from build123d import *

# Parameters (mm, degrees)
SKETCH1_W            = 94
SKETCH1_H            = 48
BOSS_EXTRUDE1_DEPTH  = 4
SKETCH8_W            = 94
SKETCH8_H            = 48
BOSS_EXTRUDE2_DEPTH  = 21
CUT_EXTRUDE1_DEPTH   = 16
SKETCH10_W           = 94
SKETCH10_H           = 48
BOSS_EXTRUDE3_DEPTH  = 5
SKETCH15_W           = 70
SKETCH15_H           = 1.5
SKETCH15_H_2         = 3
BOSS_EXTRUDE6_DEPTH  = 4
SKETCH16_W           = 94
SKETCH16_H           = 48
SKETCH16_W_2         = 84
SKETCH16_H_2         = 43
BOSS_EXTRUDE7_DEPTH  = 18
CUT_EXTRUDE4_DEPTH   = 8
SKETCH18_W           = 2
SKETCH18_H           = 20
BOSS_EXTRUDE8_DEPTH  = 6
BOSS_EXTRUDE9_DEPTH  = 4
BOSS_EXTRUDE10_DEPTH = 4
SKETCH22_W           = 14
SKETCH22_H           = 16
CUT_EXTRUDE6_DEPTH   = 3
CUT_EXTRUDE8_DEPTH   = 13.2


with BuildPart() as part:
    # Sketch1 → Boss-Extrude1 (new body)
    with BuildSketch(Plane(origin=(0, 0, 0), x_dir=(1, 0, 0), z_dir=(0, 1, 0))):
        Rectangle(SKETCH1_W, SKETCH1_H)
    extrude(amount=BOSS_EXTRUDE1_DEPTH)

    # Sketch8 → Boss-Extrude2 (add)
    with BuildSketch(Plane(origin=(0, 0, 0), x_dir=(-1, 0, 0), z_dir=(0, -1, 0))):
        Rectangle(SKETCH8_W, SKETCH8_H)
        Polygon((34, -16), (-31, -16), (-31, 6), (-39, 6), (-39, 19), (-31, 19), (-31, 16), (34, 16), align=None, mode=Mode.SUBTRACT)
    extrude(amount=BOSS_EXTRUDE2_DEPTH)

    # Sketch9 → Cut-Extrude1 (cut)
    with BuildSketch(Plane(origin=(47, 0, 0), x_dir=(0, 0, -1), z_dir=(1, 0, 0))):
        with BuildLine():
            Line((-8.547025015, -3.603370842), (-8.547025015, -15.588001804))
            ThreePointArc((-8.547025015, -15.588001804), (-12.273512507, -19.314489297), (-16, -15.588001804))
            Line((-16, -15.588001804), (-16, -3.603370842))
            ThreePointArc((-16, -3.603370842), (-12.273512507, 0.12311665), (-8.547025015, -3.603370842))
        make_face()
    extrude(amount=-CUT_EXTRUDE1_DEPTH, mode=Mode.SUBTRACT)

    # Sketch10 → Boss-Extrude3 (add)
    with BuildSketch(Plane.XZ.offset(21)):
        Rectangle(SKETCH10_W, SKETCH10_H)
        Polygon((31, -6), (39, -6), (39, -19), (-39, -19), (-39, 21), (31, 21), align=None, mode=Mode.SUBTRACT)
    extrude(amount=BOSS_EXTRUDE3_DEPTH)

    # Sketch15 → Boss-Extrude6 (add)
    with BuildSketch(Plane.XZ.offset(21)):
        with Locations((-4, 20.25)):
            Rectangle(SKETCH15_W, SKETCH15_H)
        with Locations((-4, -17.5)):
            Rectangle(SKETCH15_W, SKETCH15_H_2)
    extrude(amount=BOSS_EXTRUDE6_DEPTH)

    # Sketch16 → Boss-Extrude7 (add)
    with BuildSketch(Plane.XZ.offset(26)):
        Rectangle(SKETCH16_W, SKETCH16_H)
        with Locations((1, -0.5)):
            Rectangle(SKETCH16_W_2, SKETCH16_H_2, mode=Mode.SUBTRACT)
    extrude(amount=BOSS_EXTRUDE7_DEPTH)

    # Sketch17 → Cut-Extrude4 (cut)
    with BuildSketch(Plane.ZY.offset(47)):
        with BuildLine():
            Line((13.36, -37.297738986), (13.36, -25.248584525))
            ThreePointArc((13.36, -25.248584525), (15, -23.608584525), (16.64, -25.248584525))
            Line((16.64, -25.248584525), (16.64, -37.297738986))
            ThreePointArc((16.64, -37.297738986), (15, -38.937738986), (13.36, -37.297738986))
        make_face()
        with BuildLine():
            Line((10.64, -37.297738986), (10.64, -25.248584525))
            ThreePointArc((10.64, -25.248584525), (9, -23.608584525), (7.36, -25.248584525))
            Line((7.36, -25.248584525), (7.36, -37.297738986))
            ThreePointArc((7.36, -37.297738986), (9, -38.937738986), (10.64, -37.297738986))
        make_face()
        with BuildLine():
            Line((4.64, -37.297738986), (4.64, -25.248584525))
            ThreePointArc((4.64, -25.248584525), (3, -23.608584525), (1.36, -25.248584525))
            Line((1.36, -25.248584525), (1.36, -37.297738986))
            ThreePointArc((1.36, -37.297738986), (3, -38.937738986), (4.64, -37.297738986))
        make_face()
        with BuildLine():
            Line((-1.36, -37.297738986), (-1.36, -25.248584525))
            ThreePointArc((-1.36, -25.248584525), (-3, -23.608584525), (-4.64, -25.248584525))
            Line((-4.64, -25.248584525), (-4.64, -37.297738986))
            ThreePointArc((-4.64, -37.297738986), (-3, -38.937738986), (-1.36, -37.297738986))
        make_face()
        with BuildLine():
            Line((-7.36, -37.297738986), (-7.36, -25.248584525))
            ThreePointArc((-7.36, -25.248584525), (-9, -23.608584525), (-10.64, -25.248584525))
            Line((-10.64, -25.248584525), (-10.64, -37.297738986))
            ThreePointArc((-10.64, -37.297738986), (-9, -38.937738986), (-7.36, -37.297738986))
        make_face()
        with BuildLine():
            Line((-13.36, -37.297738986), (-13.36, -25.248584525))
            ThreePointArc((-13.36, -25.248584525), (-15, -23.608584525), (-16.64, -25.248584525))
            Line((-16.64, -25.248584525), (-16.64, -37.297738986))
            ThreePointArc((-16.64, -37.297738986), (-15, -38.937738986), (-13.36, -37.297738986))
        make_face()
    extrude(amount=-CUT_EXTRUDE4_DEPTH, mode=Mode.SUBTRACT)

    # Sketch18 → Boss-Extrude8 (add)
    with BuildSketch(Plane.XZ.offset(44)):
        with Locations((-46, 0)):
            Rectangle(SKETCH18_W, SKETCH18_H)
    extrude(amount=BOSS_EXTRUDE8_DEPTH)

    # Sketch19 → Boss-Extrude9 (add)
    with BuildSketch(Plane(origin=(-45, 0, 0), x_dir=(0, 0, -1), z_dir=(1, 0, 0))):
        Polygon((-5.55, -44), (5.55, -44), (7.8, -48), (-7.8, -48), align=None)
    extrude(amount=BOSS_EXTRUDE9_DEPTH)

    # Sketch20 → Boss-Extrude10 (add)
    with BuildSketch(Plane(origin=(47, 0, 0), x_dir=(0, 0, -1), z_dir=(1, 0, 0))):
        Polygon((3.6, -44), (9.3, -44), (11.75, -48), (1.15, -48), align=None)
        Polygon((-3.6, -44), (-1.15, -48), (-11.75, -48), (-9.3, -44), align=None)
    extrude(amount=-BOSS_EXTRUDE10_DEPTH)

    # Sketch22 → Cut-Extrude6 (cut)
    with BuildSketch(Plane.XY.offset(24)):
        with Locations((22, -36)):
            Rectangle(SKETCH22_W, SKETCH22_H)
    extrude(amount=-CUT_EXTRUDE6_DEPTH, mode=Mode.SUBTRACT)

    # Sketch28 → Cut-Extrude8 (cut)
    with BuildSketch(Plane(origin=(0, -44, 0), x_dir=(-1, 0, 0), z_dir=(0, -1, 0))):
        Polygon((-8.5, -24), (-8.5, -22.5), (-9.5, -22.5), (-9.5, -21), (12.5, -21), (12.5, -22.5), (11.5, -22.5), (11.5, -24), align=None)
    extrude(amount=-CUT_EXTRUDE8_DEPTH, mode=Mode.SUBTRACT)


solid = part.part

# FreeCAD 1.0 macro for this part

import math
import FreeCAD as App
import Part
import Sketcher
from FreeCAD import Vector


def add_polygon(sketch, points):
    """Adds a closed chain of lines whose ends are joined by coincident constraints."""
    first, n = sketch.GeometryCount, len(points)
    for a, b in zip(points, points[1:] + points[:1]):
        sketch.addGeometry(Part.LineSegment(App.Vector(*a, 0), App.Vector(*b, 0)), False)
    for i in range(n):
        sketch.addConstraint(Sketcher.Constraint("Coincident", first + i, 2, first + (i + 1) % n, 1))

doc = App.newDocument("Part")
body = doc.addObject("PartDesign::Body", "Body")

sketch1 = body.newObject("Sketcher::SketchObject", "Sketch")
sketch1.AttachmentSupport = (doc.getObject("XZ_Plane"), [""])
sketch1.MapMode = "FlatFace"
add_polygon(sketch1, [(-47, -24), (-47, 24), (47, 24), (47, -24)])
sketch1.addConstraint([
    Sketcher.Constraint("Vertical", 0),
    Sketcher.Constraint("Horizontal", 1),
    Sketcher.Constraint("Vertical", 2),
    Sketcher.Constraint("Horizontal", 3),
    Sketcher.Constraint("Symmetric", 0, 2, 2, 2, -1, 1),
    Sketcher.Constraint("DistanceX", 1, 1, 1, 2, 94.0),
    Sketcher.Constraint("DistanceY", 0, 1, 0, 2, 48.0),
])
pad1 = body.newObject("PartDesign::Pad", "Pad")
pad1.Profile = sketch1
pad1.Length = 4
pad1.Reversed = True

sketch2 = body.newObject("Sketcher::SketchObject", "Sketch001")
sketch2.AttachmentSupport = (doc.getObject("XZ_Plane"), [""])
sketch2.MapMode = "FlatFace"
add_polygon(sketch2, [(47, -24), (47, 24), (-47, 24), (-47, -24)])
add_polygon(sketch2, [(-34, -16), (-34, 16), (31, 16), (31, -6), (39, -6), (39, -19), (31, -19), (31, -16)])
sketch2.addConstraint([
    Sketcher.Constraint("Vertical", 0),
    Sketcher.Constraint("Horizontal", 1),
    Sketcher.Constraint("Vertical", 2),
    Sketcher.Constraint("Horizontal", 3),
    Sketcher.Constraint("Vertical", 4),
    Sketcher.Constraint("Horizontal", 5),
    Sketcher.Constraint("Vertical", 6),
    Sketcher.Constraint("Horizontal", 7),
    Sketcher.Constraint("Vertical", 8),
    Sketcher.Constraint("Horizontal", 9),
    Sketcher.Constraint("Vertical", 10),
    Sketcher.Constraint("Horizontal", 11),
    Sketcher.Constraint("Symmetric", 0, 2, 2, 2, -1, 1),
    Sketcher.Constraint("Symmetric", 5, 2, 10, 2, -1),
    Sketcher.Constraint("DistanceX", 1, 2, 1, 1, 94.0),
    Sketcher.Constraint("DistanceX", 5, 1, 5, 2, 65.0),
    Sketcher.Constraint("DistanceX", 7, 1, 7, 2, 8.0),
    Sketcher.Constraint("DistanceY", 0, 1, 0, 2, 48.0),
    Sketcher.Constraint("DistanceY", 4, 1, 4, 2, 32.0),
    Sketcher.Constraint("DistanceY", 6, 2, 6, 1, 22.0),
    Sketcher.Constraint("DistanceY", 8, 2, 8, 1, 13.0),
    Sketcher.Constraint("DistanceX", 4, 2, -1, 1, 34.0),
])
pad2 = body.newObject("PartDesign::Pad", "Pad001")
pad2.Profile = sketch2
pad2.Length = 21

sketch3 = body.newObject("Sketcher::SketchObject", "Sketch002")
sketch3.AttachmentSupport = (doc.getObject("YZ_Plane"), [""])
sketch3.MapMode = "FlatFace"
sketch3.AttachmentOffset = App.Placement(Vector(0, 0, 47), App.Rotation())
sketch3.addGeometry([
    Part.LineSegment(Vector(-15.6, 8.5, 0), Vector(-3.6, 8.5, 0)),
    Part.ArcOfCircle(Part.Circle(Vector(-3.6, 12.3, 0), Vector(0, 0, 1), 3.7), math.radians(-90), math.radians(90)),
    Part.LineSegment(Vector(-3.6, 16, 0), Vector(-15.6, 16, 0)),
    Part.ArcOfCircle(Part.Circle(Vector(-15.6, 12.3, 0), Vector(0, 0, 1), 3.7), math.radians(90), math.radians(270)),
], False)
sketch3.addConstraint([
    Sketcher.Constraint("Tangent", 0, 2, 1, 1),
    Sketcher.Constraint("Tangent", 1, 2, 2, 1),
    Sketcher.Constraint("Tangent", 2, 2, 3, 1),
    Sketcher.Constraint("Tangent", 3, 2, 0, 1),
    Sketcher.Constraint("Horizontal", 0),
    Sketcher.Constraint("Horizontal", 2),
    Sketcher.Constraint("DistanceY", -1, 1, 1, 2, 16.0),
    Sketcher.Constraint("DistanceX", 3, 3, -1, 1, 15.588002),
    Sketcher.Constraint("Radius", 1, 3.726487),
    Sketcher.Constraint("DistanceX", 0, 1, 0, 2, 11.984631),
])
pocket1 = body.newObject("PartDesign::Pocket", "Pocket")
pocket1.Profile = sketch3
pocket1.Length = 16

sketch4 = body.newObject("Sketcher::SketchObject", "Sketch003")
sketch4.AttachmentSupport = (doc.getObject("XZ_Plane"), [""])
sketch4.MapMode = "FlatFace"
sketch4.AttachmentOffset = App.Placement(Vector(0, 0, 21), App.Rotation())
add_polygon(sketch4, [(-47, 24), (-47, -24), (47, -24), (47, 24)])
add_polygon(sketch4, [(31, 21), (31, -6), (39, -6), (39, -19), (-39, -19), (-39, 21)])
sketch4.addConstraint([
    Sketcher.Constraint("Vertical", 0),
    Sketcher.Constraint("Horizontal", 1),
    Sketcher.Constraint("Vertical", 2),
    Sketcher.Constraint("Horizontal", 3),
    Sketcher.Constraint("Vertical", 4),
    Sketcher.Constraint("Horizontal", 5),
    Sketcher.Constraint("Vertical", 6),
    Sketcher.Constraint("Horizontal", 7),
    Sketcher.Constraint("Vertical", 8),
    Sketcher.Constraint("Horizontal", 9),
    Sketcher.Constraint("Symmetric", 0, 2, 2, 2, -1, 1),
    Sketcher.Constraint("DistanceX", 1, 1, 1, 2, 94.0),
    Sketcher.Constraint("DistanceX", 5, 1, 5, 2, 8.0),
    Sketcher.Constraint("DistanceX", 7, 2, 7, 1, 78.0),
    Sketcher.Constraint("DistanceY", 0, 2, 0, 1, 48.0),
    Sketcher.Constraint("DistanceY", 4, 2, 4, 1, 27.0),
    Sketcher.Constraint("DistanceY", 6, 2, 6, 1, 13.0),
    Sketcher.Constraint("DistanceX", -1, 1, 4, 2, 31.0),
    Sketcher.Constraint("DistanceY", 4, 2, -1, 1, 6.0),
])
pad3 = body.newObject("PartDesign::Pad", "Pad002")
pad3.Profile = sketch4
pad3.Length = 5

sketch5 = body.newObject("Sketcher::SketchObject", "Sketch004")
sketch5.AttachmentSupport = (doc.getObject("XZ_Plane"), [""])
sketch5.MapMode = "FlatFace"
sketch5.AttachmentOffset = App.Placement(Vector(0, 0, 21), App.Rotation())
add_polygon(sketch5, [(-39, 21), (-39, 19.5), (31, 19.5), (31, 21)])
add_polygon(sketch5, [(-39, -16), (-39, -19), (31, -19), (31, -16)])
sketch5.addConstraint([
    Sketcher.Constraint("Vertical", 0),
    Sketcher.Constraint("Horizontal", 1),
    Sketcher.Constraint("Vertical", 2),
    Sketcher.Constraint("Horizontal", 3),
    Sketcher.Constraint("Vertical", 4),
    Sketcher.Constraint("Horizontal", 5),
    Sketcher.Constraint("Vertical", 6),
    Sketcher.Constraint("Horizontal", 7),
    Sketcher.Constraint("Vertical", 3, 2, 4, 2),
    Sketcher.Constraint("Vertical", 2, 2, 5, 2),
    Sketcher.Constraint("DistanceX", 1, 1, 1, 2, 70.0),
    Sketcher.Constraint("DistanceY", 4, 2, 4, 1, 3.0),
    Sketcher.Constraint("DistanceY", 0, 2, 0, 1, 1.5),
    Sketcher.Constraint("DistanceX", 0, 2, -1, 1, 39.0),
    Sketcher.Constraint("DistanceY", -1, 1, 2, 2, 21.0),
    Sketcher.Constraint("DistanceY", 4, 2, -1, 1, 19.0),
])
pad4 = body.newObject("PartDesign::Pad", "Pad003")
pad4.Profile = sketch5
pad4.Length = 4

sketch6 = body.newObject("Sketcher::SketchObject", "Sketch005")
sketch6.AttachmentSupport = (doc.getObject("XZ_Plane"), [""])
sketch6.MapMode = "FlatFace"
sketch6.AttachmentOffset = App.Placement(Vector(0, 0, 26), App.Rotation())
add_polygon(sketch6, [(-47, 24), (-47, -24), (47, -24), (47, 24)])
add_polygon(sketch6, [(43, -22), (-41, -22), (-41, 21), (43, 21)])
sketch6.addConstraint([
    Sketcher.Constraint("Vertical", 0),
    Sketcher.Constraint("Horizontal", 1),
    Sketcher.Constraint("Vertical", 2),
    Sketcher.Constraint("Horizontal", 3),
    Sketcher.Constraint("Horizontal", 4),
    Sketcher.Constraint("Vertical", 5),
    Sketcher.Constraint("Horizontal", 6),
    Sketcher.Constraint("Vertical", 7),
    Sketcher.Constraint("Symmetric", 0, 2, 2, 2, -1, 1),
    Sketcher.Constraint("DistanceX", 1, 1, 1, 2, 94.0),
    Sketcher.Constraint("DistanceX", 4, 2, 4, 1, 84.0),
    Sketcher.Constraint("DistanceY", 0, 2, 0, 1, 48.0),
    Sketcher.Constraint("DistanceY", 5, 1, 5, 2, 43.0),
    Sketcher.Constraint("DistanceX", 4, 2, -1, 1, 41.0),
    Sketcher.Constraint("DistanceY", 4, 2, -1, 1, 22.0),
])
pad5 = body.newObject("PartDesign::Pad", "Pad004")
pad5.Profile = sketch6
pad5.Length = 18

sketch7 = body.newObject("Sketcher::SketchObject", "Sketch006")
sketch7.AttachmentSupport = (doc.getObject("YZ_Plane"), [""])
sketch7.MapMode = "FlatFace"
sketch7.AttachmentOffset = App.Placement(Vector(0, 0, -47), App.Rotation())
sketch7.addGeometry([
    Part.LineSegment(Vector(-25.2, 13.4, 0), Vector(-37.3, 13.4, 0)),
    Part.ArcOfCircle(Part.Circle(Vector(-37.3, 15, 0), Vector(0, 0, 1), 1.6), math.radians(90), math.radians(270)),
    Part.LineSegment(Vector(-37.3, 16.6, 0), Vector(-25.2, 16.6, 0)),
    Part.ArcOfCircle(Part.Circle(Vector(-25.2, 15, 0), Vector(0, 0, 1), 1.6), math.radians(-90), math.radians(90)),
    Part.LineSegment(Vector(-37.3, 10.6, 0), Vector(-25.2, 10.6, 0)),
    Part.ArcOfCircle(Part.Circle(Vector(-25.2, 9, 0), Vector(0, 0, 1), 1.6), math.radians(-90), math.radians(90)),
    Part.LineSegment(Vector(-25.2, 7.4, 0), Vector(-37.3, 7.4, 0)),
    Part.ArcOfCircle(Part.Circle(Vector(-37.3, 9, 0), Vector(0, 0, 1), 1.6), math.radians(90), math.radians(270)),
    Part.LineSegment(Vector(-37.3, 4.6, 0), Vector(-25.2, 4.6, 0)),
    Part.ArcOfCircle(Part.Circle(Vector(-25.2, 3, 0), Vector(0, 0, 1), 1.6), math.radians(-90), math.radians(90)),
    Part.LineSegment(Vector(-25.2, 1.4, 0), Vector(-37.3, 1.4, 0)),
    Part.ArcOfCircle(Part.Circle(Vector(-37.3, 3, 0), Vector(0, 0, 1), 1.6), math.radians(90), math.radians(270)),
    Part.LineSegment(Vector(-37.3, -1.4, 0), Vector(-25.2, -1.4, 0)),
    Part.ArcOfCircle(Part.Circle(Vector(-25.2, -3, 0), Vector(0, 0, 1), 1.6), math.radians(-90), math.radians(90)),
    Part.LineSegment(Vector(-25.2, -4.6, 0), Vector(-37.3, -4.6, 0)),
    Part.ArcOfCircle(Part.Circle(Vector(-37.3, -3, 0), Vector(0, 0, 1), 1.6), math.radians(90), math.radians(270)),
    Part.LineSegment(Vector(-37.3, -7.4, 0), Vector(-25.2, -7.4, 0)),
    Part.ArcOfCircle(Part.Circle(Vector(-25.2, -9, 0), Vector(0, 0, 1), 1.6), math.radians(-90), math.radians(90)),
    Part.LineSegment(Vector(-25.2, -10.6, 0), Vector(-37.3, -10.6, 0)),
    Part.ArcOfCircle(Part.Circle(Vector(-37.3, -9, 0), Vector(0, 0, 1), 1.6), math.radians(90), math.radians(270)),
    Part.LineSegment(Vector(-37.3, -13.4, 0), Vector(-25.2, -13.4, 0)),
    Part.ArcOfCircle(Part.Circle(Vector(-25.2, -15, 0), Vector(0, 0, 1), 1.6), math.radians(-90), math.radians(90)),
    Part.LineSegment(Vector(-25.2, -16.6, 0), Vector(-37.3, -16.6, 0)),
    Part.ArcOfCircle(Part.Circle(Vector(-37.3, -15, 0), Vector(0, 0, 1), 1.6), math.radians(90), math.radians(270)),
], False)
sketch7.addConstraint([
    Sketcher.Constraint("Tangent", 0, 2, 1, 2),
    Sketcher.Constraint("Tangent", 1, 1, 2, 1),
    Sketcher.Constraint("Tangent", 2, 2, 3, 2),
    Sketcher.Constraint("Tangent", 3, 1, 0, 1),
    Sketcher.Constraint("Tangent", 4, 2, 5, 2),
    Sketcher.Constraint("Tangent", 5, 1, 6, 1),
    Sketcher.Constraint("Tangent", 6, 2, 7, 2),
    Sketcher.Constraint("Tangent", 7, 1, 4, 1),
    Sketcher.Constraint("Tangent", 8, 2, 9, 2),
    Sketcher.Constraint("Tangent", 9, 1, 10, 1),
    Sketcher.Constraint("Tangent", 10, 2, 11, 2),
    Sketcher.Constraint("Tangent", 11, 1, 8, 1),
    Sketcher.Constraint("Tangent", 12, 2, 13, 2),
    Sketcher.Constraint("Tangent", 13, 1, 14, 1),
    Sketcher.Constraint("Tangent", 14, 2, 15, 2),
    Sketcher.Constraint("Tangent", 15, 1, 12, 1),
    Sketcher.Constraint("Tangent", 16, 2, 17, 2),
    Sketcher.Constraint("Tangent", 17, 1, 18, 1),
    Sketcher.Constraint("Tangent", 18, 2, 19, 2),
    Sketcher.Constraint("Tangent", 19, 1, 16, 1),
    Sketcher.Constraint("Tangent", 20, 2, 21, 2),
    Sketcher.Constraint("Tangent", 21, 1, 22, 1),
    Sketcher.Constraint("Tangent", 22, 2, 23, 2),
    Sketcher.Constraint("Tangent", 23, 1, 20, 1),
    Sketcher.Constraint("Horizontal", 0),
    Sketcher.Constraint("Horizontal", 2),
    Sketcher.Constraint("Horizontal", 4),
    Sketcher.Constraint("Horizontal", 6),
    Sketcher.Constraint("Horizontal", 8),
    Sketcher.Constraint("Horizontal", 10),
    Sketcher.Constraint("Horizontal", 12),
    Sketcher.Constraint("Horizontal", 14),
    Sketcher.Constraint("Horizontal", 16),
    Sketcher.Constraint("Horizontal", 18),
    Sketcher.Constraint("Horizontal", 20),
    Sketcher.Constraint("Horizontal", 22),
    Sketcher.Constraint("Equal", 3, 5),
    Sketcher.Constraint("Equal", 7, 9),
    Sketcher.Constraint("Equal", 11, 13),
    Sketcher.Constraint("Equal", 15, 17),
    Sketcher.Constraint("Equal", 19, 21),
    Sketcher.Constraint("Symmetric", 9, 3, 13, 3, -1),
    Sketcher.Constraint("Symmetric", 5, 3, 17, 3, -1),
    Sketcher.Constraint("Symmetric", 3, 3, 21, 3, -1),
    Sketcher.Constraint("Vertical", 3, 3, 5, 3),
    Sketcher.Constraint("Vertical", 1, 3, 7, 3),
    Sketcher.Constraint("Vertical", 5, 3, 9, 3),
    Sketcher.Constraint("Vertical", 7, 3, 11, 3),
    Sketcher.Constraint("Vertical", 11, 3, 15, 3),
    Sketcher.Constraint("Vertical", 15, 3, 19, 3),
    Sketcher.Constraint("Vertical", 19, 3, 23, 3),
    Sketcher.Constraint("Radius", 1, 1.64),
    Sketcher.Constraint("DistanceY", -1, 1, 1, 3, 15.0),
    Sketcher.Constraint("DistanceY", -1, 1, 5, 3, 9.0),
    Sketcher.Constraint("DistanceY", -1, 1, 9, 3, 3.0),
    Sketcher.Constraint("DistanceX", 0, 2, 0, 1, 12.049154),
    Sketcher.Constraint("DistanceX", 1, 3, -1, 1, 37.297739),
])
pocket2 = body.newObject("PartDesign::Pocket", "Pocket001")
pocket2.Profile = sketch7
pocket2.Length = 8
pocket2.Reversed = True

sketch8 = body.newObject("Sketcher::SketchObject", "Sketch007")
sketch8.AttachmentSupport = (doc.getObject("XZ_Plane"), [""])
sketch8.MapMode = "FlatFace"
sketch8.AttachmentOffset = App.Placement(Vector(0, 0, 44), App.Rotation())
add_polygon(sketch8, [(-47, 10), (-47, -10), (-45, -10), (-45, 10)])
sketch8.addConstraint([
    Sketcher.Constraint("Vertical", 0),
    Sketcher.Constraint("Horizontal", 1),
    Sketcher.Constraint("Vertical", 2),
    Sketcher.Constraint("Horizontal", 3),
    Sketcher.Constraint("DistanceX", 1, 1, 1, 2, 2.0),
    Sketcher.Constraint("DistanceY", 0, 2, 0, 1, 20.0),
    Sketcher.Constraint("DistanceX", 0, 2, -1, 1, 47.0),
    Sketcher.Constraint("DistanceY", 0, 2, -1, 1, 10.0),
])
pad6 = body.newObject("PartDesign::Pad", "Pad005")
pad6.Profile = sketch8
pad6.Length = 6

sketch9 = body.newObject("Sketcher::SketchObject", "Sketch008")
sketch9.AttachmentSupport = (doc.getObject("YZ_Plane"), [""])
sketch9.MapMode = "FlatFace"
sketch9.AttachmentOffset = App.Placement(Vector(0, 0, -45), App.Rotation())
add_polygon(sketch9, [(-44, -5.5), (-44, 5.5), (-48, 7.8), (-48, -7.8)])
sketch9.addConstraint([
    Sketcher.Constraint("Vertical", 0),
    Sketcher.Constraint("Vertical", 2),
    Sketcher.Constraint("Equal", 1, 3),
    Sketcher.Constraint("DistanceY", 0, 1, 0, 2, 11.1),
    Sketcher.Constraint("DistanceY", 2, 2, 2, 1, 15.6),
    Sketcher.Constraint("DistanceX", 0, 2, -1, 1, 44.0),
    Sketcher.Constraint("DistanceX", 1, 2, -1, 1, 48.0),
    Sketcher.Constraint("DistanceY", -1, 1, 1, 2, 7.8),
])
pad7 = body.newObject("PartDesign::Pad", "Pad006")
pad7.Profile = sketch9
pad7.Length = 4

sketch10 = body.newObject("Sketcher::SketchObject", "Sketch009")
sketch10.AttachmentSupport = (doc.getObject("YZ_Plane"), [""])
sketch10.MapMode = "FlatFace"
sketch10.AttachmentOffset = App.Placement(Vector(0, 0, 47), App.Rotation())
add_polygon(sketch10, [(-44, -9.3), (-44, -3.6), (-48, -1.1), (-48, -11.8)])
add_polygon(sketch10, [(-48, 1.1), (-44, 3.6), (-44, 9.3), (-48, 11.8)])
sketch10.addConstraint([
    Sketcher.Constraint("Vertical", 0),
    Sketcher.Constraint("Vertical", 2),
    Sketcher.Constraint("Vertical", 5),
    Sketcher.Constraint("Vertical", 7),
    Sketcher.Constraint("Symmetric", 0, 2, 4, 2, -1),
    Sketcher.Constraint("Symmetric", 2, 2, 6, 2, -1),
    Sketcher.Constraint("Parallel", 3, 4),
    Sketcher.Constraint("Parallel", 1, 6),
    Sketcher.Constraint("Equal", 0, 5),
    Sketcher.Constraint("DistanceY", 0, 1, 0, 2, 5.7),
    Sketcher.Constraint("DistanceY", 2, 2, 2, 1, 10.6),
    Sketcher.Constraint("DistanceX", 0, 2, -1, 1, 44.0),
    Sketcher.Constraint("DistanceX", 1, 2, -1, 1, 48.0),
    Sketcher.Constraint("DistanceY", 0, 2, -1, 1, 3.6),
])
pad8 = body.newObject("PartDesign::Pad", "Pad007")
pad8.Profile = sketch10
pad8.Length = 4
pad8.Reversed = True

sketch11 = body.newObject("Sketcher::SketchObject", "Sketch010")
sketch11.AttachmentSupport = (doc.getObject("XY_Plane"), [""])
sketch11.MapMode = "FlatFace"
sketch11.AttachmentOffset = App.Placement(Vector(0, 0, 24), App.Rotation())
add_polygon(sketch11, [(15, -28), (15, -44), (29, -44), (29, -28)])
sketch11.addConstraint([
    Sketcher.Constraint("Vertical", 0),
    Sketcher.Constraint("Horizontal", 1),
    Sketcher.Constraint("Vertical", 2),
    Sketcher.Constraint("Horizontal", 3),
    Sketcher.Constraint("DistanceX", 1, 1, 1, 2, 14.0),
    Sketcher.Constraint("DistanceY", 0, 2, 0, 1, 16.0),
    Sketcher.Constraint("DistanceX", -1, 1, 0, 2, 15.0),
    Sketcher.Constraint("DistanceY", 0, 2, -1, 1, 44.0),
])
pocket3 = body.newObject("PartDesign::Pocket", "Pocket002")
pocket3.Profile = sketch11
pocket3.Length = 3

sketch12 = body.newObject("Sketcher::SketchObject", "Sketch011")
sketch12.AttachmentSupport = (doc.getObject("XZ_Plane"), [""])
sketch12.MapMode = "FlatFace"
sketch12.AttachmentOffset = App.Placement(Vector(0, 0, 44), App.Rotation())
add_polygon(sketch12, [(8.5, 22.5), (8.5, 24), (-11.5, 24), (-11.5, 22.5), (-12.5, 22.5), (-12.5, 21), (9.5, 21), (9.5, 22.5)])
sketch12.addConstraint([
    Sketcher.Constraint("Vertical", 0),
    Sketcher.Constraint("Horizontal", 1),
    Sketcher.Constraint("Vertical", 2),
    Sketcher.Constraint("Horizontal", 3),
    Sketcher.Constraint("Vertical", 4),
    Sketcher.Constraint("Horizontal", 5),
    Sketcher.Constraint("Vertical", 6),
    Sketcher.Constraint("Horizontal", 7),
    Sketcher.Constraint("Horizontal", 3, 2, 6, 2),
    Sketcher.Constraint("Equal", 3, 7),
    Sketcher.Constraint("Equal", 2, 4),
    Sketcher.Constraint("DistanceX", 1, 2, 1, 1, 20.0),
    Sketcher.Constraint("DistanceX", 3, 2, 3, 1, 1.0),
    Sketcher.Constraint("DistanceY", 0, 1, 0, 2, 1.5),
    Sketcher.Constraint("DistanceY", -1, 1, 0, 2, 24.0),
    Sketcher.Constraint("DistanceX", -1, 1, 0, 2, 8.5),
])
pocket4 = body.newObject("PartDesign::Pocket", "Pocket003")
pocket4.Profile = sketch12
pocket4.Length = 13.2

doc.recompute()
